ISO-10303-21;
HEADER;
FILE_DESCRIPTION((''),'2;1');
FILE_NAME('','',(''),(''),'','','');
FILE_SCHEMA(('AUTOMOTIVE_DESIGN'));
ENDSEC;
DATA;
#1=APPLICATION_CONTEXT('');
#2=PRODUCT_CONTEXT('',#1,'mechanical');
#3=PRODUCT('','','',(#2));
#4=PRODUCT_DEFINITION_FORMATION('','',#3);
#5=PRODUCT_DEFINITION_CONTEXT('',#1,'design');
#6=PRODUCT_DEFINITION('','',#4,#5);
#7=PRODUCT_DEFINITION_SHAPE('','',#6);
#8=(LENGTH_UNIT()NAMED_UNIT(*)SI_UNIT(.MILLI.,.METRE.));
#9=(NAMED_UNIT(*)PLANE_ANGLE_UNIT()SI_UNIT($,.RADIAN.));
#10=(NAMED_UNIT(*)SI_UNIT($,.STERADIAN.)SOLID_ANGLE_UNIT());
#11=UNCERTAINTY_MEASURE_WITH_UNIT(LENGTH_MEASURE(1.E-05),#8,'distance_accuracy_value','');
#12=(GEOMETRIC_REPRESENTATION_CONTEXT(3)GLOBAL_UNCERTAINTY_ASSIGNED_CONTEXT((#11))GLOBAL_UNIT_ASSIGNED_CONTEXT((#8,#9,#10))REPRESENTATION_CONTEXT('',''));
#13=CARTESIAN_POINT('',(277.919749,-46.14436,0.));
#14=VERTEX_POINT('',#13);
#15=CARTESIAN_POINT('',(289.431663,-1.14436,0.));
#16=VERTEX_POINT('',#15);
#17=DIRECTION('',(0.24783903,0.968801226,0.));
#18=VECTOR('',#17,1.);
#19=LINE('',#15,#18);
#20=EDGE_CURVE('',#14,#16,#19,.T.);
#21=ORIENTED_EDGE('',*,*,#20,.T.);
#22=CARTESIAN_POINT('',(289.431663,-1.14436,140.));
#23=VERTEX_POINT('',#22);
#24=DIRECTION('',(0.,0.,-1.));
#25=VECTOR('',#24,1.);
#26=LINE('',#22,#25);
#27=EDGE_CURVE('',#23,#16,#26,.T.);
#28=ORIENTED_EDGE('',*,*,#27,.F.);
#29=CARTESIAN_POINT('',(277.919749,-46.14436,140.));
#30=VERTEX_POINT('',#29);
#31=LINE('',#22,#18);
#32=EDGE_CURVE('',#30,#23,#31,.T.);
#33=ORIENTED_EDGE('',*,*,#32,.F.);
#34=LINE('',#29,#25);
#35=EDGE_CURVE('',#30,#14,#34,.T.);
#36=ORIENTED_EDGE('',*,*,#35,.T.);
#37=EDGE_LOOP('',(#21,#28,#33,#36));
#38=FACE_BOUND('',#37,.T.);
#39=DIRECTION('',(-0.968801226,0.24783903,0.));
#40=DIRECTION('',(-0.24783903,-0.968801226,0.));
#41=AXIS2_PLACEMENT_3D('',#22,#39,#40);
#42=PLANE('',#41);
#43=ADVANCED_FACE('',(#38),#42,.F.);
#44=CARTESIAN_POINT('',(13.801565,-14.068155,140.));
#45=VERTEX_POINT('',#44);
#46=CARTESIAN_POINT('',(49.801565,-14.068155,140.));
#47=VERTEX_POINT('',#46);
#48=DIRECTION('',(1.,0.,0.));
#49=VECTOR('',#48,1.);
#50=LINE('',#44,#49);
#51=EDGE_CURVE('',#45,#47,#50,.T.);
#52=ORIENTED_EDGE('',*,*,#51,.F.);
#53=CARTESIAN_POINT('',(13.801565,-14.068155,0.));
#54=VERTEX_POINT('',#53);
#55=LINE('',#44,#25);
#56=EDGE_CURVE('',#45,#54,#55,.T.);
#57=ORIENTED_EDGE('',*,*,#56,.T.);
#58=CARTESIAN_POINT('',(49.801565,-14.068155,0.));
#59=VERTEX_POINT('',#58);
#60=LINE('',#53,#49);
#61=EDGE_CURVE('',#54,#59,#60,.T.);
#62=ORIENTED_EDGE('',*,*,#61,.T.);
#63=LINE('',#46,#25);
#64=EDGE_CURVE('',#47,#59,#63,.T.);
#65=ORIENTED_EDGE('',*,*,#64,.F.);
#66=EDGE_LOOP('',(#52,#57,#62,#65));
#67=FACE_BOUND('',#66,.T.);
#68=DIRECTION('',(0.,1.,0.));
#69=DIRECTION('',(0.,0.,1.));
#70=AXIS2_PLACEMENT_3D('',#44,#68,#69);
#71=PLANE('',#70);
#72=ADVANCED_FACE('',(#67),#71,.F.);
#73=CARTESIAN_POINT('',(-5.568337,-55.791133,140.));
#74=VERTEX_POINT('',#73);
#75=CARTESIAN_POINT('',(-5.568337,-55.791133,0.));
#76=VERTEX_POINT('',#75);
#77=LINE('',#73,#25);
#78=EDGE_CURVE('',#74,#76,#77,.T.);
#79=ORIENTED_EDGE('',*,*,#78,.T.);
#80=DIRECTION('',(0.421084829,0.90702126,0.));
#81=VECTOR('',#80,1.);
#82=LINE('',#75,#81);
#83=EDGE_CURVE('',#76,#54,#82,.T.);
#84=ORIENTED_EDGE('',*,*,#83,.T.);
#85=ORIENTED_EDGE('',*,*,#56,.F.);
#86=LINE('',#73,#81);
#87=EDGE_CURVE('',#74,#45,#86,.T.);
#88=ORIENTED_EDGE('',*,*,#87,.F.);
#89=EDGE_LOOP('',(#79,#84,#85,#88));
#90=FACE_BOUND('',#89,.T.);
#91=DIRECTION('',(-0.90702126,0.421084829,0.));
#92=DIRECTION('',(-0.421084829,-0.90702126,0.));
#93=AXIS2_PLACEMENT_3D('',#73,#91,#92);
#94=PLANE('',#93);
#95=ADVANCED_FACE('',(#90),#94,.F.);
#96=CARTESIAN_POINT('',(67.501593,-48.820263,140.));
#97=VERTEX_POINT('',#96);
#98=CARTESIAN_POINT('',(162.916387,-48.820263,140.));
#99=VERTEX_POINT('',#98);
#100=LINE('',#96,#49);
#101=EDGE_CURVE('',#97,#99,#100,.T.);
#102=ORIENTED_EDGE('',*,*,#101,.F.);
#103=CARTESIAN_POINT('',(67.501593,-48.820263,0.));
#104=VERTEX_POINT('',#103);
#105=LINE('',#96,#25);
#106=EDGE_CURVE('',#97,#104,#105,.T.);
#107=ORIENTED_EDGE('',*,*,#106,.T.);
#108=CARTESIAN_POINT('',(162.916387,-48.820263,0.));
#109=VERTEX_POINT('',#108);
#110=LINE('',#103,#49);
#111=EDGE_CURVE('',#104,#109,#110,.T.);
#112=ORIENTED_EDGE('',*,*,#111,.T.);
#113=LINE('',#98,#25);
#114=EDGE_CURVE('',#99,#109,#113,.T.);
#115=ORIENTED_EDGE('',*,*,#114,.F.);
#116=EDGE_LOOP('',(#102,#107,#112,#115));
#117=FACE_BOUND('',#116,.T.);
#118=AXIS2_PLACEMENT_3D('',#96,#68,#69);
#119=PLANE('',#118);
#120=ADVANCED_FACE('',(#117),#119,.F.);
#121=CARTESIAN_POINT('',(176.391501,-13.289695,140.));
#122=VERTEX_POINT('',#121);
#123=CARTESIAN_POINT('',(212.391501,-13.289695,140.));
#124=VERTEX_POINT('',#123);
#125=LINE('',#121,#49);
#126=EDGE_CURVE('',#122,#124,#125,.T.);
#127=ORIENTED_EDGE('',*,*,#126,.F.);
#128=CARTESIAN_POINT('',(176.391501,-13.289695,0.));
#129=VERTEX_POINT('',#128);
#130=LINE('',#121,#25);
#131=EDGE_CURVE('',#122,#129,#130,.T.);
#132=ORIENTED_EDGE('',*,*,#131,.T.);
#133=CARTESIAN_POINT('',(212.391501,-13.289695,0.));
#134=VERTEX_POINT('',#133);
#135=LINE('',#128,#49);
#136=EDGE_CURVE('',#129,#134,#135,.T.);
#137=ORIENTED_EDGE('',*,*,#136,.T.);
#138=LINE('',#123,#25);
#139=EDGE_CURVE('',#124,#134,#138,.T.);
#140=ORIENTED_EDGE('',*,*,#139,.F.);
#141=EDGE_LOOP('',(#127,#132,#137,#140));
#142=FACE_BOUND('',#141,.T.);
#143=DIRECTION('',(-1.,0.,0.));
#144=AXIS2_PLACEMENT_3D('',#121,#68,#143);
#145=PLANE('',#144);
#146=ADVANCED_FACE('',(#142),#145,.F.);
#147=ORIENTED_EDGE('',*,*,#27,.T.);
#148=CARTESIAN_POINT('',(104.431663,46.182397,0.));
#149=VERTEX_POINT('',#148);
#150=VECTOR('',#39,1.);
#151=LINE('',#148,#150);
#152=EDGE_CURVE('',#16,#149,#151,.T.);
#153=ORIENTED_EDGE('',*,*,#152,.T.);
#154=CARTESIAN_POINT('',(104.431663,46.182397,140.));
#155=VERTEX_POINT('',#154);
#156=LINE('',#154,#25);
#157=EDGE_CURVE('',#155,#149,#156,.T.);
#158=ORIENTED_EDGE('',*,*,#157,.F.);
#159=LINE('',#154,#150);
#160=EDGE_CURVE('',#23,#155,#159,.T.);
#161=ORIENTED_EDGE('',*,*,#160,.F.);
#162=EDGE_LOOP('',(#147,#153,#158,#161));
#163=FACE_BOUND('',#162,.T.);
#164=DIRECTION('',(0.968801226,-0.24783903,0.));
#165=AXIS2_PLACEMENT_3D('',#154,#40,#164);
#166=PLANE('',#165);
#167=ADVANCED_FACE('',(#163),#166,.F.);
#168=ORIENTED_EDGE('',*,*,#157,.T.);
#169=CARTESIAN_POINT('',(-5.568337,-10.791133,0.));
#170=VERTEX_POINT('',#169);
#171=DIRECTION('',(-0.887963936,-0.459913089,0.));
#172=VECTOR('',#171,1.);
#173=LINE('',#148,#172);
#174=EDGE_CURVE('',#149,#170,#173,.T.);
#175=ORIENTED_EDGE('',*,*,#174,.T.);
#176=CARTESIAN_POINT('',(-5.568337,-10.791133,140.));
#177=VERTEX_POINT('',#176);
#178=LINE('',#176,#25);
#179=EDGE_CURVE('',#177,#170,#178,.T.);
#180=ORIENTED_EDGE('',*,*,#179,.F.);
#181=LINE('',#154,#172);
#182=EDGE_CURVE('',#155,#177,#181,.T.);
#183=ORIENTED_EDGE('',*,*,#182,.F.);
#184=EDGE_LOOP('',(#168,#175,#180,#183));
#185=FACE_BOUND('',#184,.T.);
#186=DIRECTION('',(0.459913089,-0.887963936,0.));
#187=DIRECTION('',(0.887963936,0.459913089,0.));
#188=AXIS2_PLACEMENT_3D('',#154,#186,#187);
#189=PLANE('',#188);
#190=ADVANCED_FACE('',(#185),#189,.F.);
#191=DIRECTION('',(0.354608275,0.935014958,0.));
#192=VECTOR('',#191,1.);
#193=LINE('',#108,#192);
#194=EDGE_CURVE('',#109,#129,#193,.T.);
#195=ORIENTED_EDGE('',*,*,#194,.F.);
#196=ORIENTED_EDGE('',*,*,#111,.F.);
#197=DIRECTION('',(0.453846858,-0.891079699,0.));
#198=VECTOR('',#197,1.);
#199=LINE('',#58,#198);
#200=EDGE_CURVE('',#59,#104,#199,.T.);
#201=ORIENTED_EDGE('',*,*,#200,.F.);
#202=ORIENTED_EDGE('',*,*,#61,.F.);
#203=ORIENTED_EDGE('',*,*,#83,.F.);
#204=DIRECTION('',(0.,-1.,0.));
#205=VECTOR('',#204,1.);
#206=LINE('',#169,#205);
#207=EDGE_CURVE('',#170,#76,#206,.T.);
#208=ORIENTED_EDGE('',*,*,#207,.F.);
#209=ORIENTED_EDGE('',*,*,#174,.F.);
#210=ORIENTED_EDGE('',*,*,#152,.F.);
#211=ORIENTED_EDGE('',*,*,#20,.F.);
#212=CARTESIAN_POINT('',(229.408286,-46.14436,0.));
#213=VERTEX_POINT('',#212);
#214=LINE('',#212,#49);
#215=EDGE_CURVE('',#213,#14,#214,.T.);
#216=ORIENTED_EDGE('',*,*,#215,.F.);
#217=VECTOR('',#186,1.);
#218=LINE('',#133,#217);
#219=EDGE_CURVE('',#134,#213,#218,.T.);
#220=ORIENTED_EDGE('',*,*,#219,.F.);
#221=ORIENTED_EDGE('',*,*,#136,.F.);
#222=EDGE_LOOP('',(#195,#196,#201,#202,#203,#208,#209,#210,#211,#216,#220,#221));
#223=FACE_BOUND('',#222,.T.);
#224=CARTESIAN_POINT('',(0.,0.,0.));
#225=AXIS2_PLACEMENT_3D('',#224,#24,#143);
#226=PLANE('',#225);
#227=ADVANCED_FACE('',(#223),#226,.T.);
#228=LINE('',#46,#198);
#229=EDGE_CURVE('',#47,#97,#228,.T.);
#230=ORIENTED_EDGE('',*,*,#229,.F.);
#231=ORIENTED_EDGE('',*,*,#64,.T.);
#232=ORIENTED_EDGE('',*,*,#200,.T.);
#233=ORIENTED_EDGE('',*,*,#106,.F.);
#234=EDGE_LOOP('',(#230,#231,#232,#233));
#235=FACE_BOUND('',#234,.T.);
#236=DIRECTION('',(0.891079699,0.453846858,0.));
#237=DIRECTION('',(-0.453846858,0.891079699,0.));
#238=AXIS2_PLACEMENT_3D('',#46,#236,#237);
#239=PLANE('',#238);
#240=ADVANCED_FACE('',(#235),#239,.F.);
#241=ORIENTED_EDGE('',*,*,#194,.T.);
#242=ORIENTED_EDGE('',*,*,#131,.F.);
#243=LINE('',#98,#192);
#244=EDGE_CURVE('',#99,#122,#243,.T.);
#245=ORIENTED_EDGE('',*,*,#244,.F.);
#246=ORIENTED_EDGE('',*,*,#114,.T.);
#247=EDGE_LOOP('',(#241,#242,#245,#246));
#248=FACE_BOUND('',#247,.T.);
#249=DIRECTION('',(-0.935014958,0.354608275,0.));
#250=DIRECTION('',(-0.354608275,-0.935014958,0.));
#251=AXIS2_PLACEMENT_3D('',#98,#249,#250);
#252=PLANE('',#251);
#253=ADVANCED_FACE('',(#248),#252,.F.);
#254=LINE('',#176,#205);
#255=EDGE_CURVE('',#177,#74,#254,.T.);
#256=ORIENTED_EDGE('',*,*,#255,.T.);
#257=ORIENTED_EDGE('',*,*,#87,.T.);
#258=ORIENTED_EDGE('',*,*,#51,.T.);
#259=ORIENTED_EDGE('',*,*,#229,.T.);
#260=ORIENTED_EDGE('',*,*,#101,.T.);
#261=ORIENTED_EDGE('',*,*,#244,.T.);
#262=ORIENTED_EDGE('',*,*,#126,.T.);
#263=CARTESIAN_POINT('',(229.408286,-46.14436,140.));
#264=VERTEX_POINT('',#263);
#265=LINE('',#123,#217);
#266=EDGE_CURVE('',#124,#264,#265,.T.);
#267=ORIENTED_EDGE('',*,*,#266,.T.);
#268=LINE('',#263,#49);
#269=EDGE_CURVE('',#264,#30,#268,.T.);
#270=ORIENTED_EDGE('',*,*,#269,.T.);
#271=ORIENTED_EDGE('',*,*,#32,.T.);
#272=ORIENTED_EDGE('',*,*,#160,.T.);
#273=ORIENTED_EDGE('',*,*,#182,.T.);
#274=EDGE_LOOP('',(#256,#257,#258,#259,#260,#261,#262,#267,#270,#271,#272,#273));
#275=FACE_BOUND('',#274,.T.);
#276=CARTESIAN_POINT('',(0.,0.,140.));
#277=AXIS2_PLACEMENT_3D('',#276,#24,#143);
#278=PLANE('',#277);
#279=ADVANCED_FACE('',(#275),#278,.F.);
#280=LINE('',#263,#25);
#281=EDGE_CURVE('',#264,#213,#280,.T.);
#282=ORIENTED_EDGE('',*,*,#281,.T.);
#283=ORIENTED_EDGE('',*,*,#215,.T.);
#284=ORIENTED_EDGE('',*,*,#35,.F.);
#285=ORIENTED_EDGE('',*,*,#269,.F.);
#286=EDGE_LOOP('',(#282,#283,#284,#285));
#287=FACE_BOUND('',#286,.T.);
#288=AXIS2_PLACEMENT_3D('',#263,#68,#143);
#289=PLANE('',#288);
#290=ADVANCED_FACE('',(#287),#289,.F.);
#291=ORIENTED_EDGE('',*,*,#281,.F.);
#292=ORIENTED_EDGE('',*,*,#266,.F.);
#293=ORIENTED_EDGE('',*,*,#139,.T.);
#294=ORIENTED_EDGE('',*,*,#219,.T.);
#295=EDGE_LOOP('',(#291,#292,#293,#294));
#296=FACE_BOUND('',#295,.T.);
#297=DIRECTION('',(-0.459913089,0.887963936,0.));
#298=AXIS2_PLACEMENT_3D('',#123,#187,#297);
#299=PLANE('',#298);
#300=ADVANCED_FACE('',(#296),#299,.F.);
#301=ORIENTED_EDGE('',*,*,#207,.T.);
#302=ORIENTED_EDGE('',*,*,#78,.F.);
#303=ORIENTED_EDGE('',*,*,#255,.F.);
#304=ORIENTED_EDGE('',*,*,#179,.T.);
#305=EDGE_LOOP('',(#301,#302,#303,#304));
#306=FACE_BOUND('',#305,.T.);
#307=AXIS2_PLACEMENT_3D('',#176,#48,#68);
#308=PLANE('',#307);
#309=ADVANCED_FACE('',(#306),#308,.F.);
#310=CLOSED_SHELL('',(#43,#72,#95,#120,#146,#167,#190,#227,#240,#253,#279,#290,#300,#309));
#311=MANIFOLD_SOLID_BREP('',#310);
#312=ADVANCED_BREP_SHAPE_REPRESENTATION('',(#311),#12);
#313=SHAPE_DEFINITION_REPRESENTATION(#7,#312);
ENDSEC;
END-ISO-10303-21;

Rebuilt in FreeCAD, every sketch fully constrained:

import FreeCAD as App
import Part
import Sketcher
Q = App.Units.Quantity

doc = App.newDocument("Part")
body = doc.addObject("PartDesign::Body", "Body")

# Sketch on XY plane
sketch1 = body.newObject("Sketcher::SketchObject", "Sketch")
sketch1.AttachmentSupport = (doc.getObject("XY_Plane"), [""])
sketch1.MapMode = "FlatFace"
sketch1.addGeometry(Part.LineSegment(App.Vector(104, 46, 0), App.Vector(-6, -11, 0)), False)
sketch1.addGeometry(Part.LineSegment(App.Vector(-6, -11, 0), App.Vector(-6, -56, 0)), False)
sketch1.addGeometry(Part.LineSegment(App.Vector(-6, -56, 0), App.Vector(14, -14, 0)), False)
sketch1.addGeometry(Part.LineSegment(App.Vector(14, -14, 0), App.Vector(50, -14, 0)), False)
sketch1.addGeometry(Part.LineSegment(App.Vector(50, -14, 0), App.Vector(68, -49, 0)), False)
sketch1.addGeometry(Part.LineSegment(App.Vector(68, -49, 0), App.Vector(163, -49, 0)), False)
sketch1.addGeometry(Part.LineSegment(App.Vector(163, -49, 0), App.Vector(176, -13, 0)), False)
sketch1.addGeometry(Part.LineSegment(App.Vector(176, -13, 0), App.Vector(212, -13, 0)), False)
sketch1.addGeometry(Part.LineSegment(App.Vector(212, -13, 0), App.Vector(229, -46, 0)), False)
sketch1.addGeometry(Part.LineSegment(App.Vector(229, -46, 0), App.Vector(278, -46, 0)), False)
sketch1.addGeometry(Part.LineSegment(App.Vector(278, -46, 0), App.Vector(289, -1, 0)), False)
sketch1.addGeometry(Part.LineSegment(App.Vector(289, -1, 0), App.Vector(104, 46, 0)), False)
sketch1.addConstraint(Sketcher.Constraint("Coincident", 0, 2, 1, 1))
sketch1.addConstraint(Sketcher.Constraint("Coincident", 1, 2, 2, 1))
sketch1.addConstraint(Sketcher.Constraint("Coincident", 2, 2, 3, 1))
sketch1.addConstraint(Sketcher.Constraint("Coincident", 3, 2, 4, 1))
sketch1.addConstraint(Sketcher.Constraint("Coincident", 4, 2, 5, 1))
sketch1.addConstraint(Sketcher.Constraint("Coincident", 5, 2, 6, 1))
sketch1.addConstraint(Sketcher.Constraint("Coincident", 6, 2, 7, 1))
sketch1.addConstraint(Sketcher.Constraint("Coincident", 7, 2, 8, 1))
sketch1.addConstraint(Sketcher.Constraint("Coincident", 8, 2, 9, 1))
sketch1.addConstraint(Sketcher.Constraint("Coincident", 9, 2, 10, 1))
sketch1.addConstraint(Sketcher.Constraint("Coincident", 10, 2, 11, 1))
sketch1.addConstraint(Sketcher.Constraint("Coincident", 11, 2, 0, 1))
sketch1.addConstraint(Sketcher.Constraint("Vertical", 1))
sketch1.addConstraint(Sketcher.Constraint("Horizontal", 3))
sketch1.addConstraint(Sketcher.Constraint("Horizontal", 5))
sketch1.addConstraint(Sketcher.Constraint("Horizontal", 7))
sketch1.addConstraint(Sketcher.Constraint("Horizontal", 9))
sketch1.addConstraint(Sketcher.Constraint("Perpendicular", 0, 8))
sketch1.addConstraint(Sketcher.Constraint("Perpendicular", 10, 11))
sketch1.addConstraint(Sketcher.Constraint("Equal", 3, 7))
sketch1.addConstraint(Sketcher.Constraint("DistanceX", 3, 1, 3, 2, Q("36 mm")))
sketch1.addConstraint(Sketcher.Constraint("DistanceY", 1, 2, 1, 1, Q("45 mm")))
sketch1.addConstraint(Sketcher.Constraint("Distance", 2, Q("46 mm")))
sketch1.addConstraint(Sketcher.Constraint("Distance", 4, Q("39 mm")))
sketch1.addConstraint(Sketcher.Constraint("Distance", 6, Q("38 mm")))
sketch1.addConstraint(Sketcher.Constraint("Distance", 8, Q("37 mm")))
sketch1.addConstraint(Sketcher.Constraint("DistanceY", 9, 2, 10, 2, Q("45 mm")))
sketch1.addConstraint(Sketcher.Constraint("DistanceX", -1, 1, 6, 2, Q("176.391501 mm")))
sketch1.addConstraint(Sketcher.Constraint("DistanceX", 5, 2, 8, 2, Q("66.491899 mm")))
sketch1.addConstraint(Sketcher.Constraint("DistanceX", 5, 1, 5, 2, Q("95.414794 mm")))
sketch1.addConstraint(Sketcher.Constraint("DistanceX", 9, 1, 9, 2, Q("48.511464 mm")))
sketch1.addConstraint(Sketcher.Constraint("DistanceY", 8, 2, -1, 1, Q("46.14436 mm")))
sketch1.addConstraint(Sketcher.Constraint("DistanceX", -1, 1, 9, 2, Q("277.919749 mm")))
sketch1.addConstraint(Sketcher.Constraint("DistanceY", 4, 2, 3, 2, Q("34.752108 mm")))
sketch1.addConstraint(Sketcher.Constraint("DistanceX", 1, 2, 4, 2, Q("73.06993 mm")))
sketch1.addConstraint(Sketcher.Constraint("DistanceX", 7, 2, 10, 2, Q("77.040162 mm")))
pad1 = body.newObject("PartDesign::Pad", "Pad")
pad1.Profile = sketch1
pad1.Length = 140

doc.recompute()
